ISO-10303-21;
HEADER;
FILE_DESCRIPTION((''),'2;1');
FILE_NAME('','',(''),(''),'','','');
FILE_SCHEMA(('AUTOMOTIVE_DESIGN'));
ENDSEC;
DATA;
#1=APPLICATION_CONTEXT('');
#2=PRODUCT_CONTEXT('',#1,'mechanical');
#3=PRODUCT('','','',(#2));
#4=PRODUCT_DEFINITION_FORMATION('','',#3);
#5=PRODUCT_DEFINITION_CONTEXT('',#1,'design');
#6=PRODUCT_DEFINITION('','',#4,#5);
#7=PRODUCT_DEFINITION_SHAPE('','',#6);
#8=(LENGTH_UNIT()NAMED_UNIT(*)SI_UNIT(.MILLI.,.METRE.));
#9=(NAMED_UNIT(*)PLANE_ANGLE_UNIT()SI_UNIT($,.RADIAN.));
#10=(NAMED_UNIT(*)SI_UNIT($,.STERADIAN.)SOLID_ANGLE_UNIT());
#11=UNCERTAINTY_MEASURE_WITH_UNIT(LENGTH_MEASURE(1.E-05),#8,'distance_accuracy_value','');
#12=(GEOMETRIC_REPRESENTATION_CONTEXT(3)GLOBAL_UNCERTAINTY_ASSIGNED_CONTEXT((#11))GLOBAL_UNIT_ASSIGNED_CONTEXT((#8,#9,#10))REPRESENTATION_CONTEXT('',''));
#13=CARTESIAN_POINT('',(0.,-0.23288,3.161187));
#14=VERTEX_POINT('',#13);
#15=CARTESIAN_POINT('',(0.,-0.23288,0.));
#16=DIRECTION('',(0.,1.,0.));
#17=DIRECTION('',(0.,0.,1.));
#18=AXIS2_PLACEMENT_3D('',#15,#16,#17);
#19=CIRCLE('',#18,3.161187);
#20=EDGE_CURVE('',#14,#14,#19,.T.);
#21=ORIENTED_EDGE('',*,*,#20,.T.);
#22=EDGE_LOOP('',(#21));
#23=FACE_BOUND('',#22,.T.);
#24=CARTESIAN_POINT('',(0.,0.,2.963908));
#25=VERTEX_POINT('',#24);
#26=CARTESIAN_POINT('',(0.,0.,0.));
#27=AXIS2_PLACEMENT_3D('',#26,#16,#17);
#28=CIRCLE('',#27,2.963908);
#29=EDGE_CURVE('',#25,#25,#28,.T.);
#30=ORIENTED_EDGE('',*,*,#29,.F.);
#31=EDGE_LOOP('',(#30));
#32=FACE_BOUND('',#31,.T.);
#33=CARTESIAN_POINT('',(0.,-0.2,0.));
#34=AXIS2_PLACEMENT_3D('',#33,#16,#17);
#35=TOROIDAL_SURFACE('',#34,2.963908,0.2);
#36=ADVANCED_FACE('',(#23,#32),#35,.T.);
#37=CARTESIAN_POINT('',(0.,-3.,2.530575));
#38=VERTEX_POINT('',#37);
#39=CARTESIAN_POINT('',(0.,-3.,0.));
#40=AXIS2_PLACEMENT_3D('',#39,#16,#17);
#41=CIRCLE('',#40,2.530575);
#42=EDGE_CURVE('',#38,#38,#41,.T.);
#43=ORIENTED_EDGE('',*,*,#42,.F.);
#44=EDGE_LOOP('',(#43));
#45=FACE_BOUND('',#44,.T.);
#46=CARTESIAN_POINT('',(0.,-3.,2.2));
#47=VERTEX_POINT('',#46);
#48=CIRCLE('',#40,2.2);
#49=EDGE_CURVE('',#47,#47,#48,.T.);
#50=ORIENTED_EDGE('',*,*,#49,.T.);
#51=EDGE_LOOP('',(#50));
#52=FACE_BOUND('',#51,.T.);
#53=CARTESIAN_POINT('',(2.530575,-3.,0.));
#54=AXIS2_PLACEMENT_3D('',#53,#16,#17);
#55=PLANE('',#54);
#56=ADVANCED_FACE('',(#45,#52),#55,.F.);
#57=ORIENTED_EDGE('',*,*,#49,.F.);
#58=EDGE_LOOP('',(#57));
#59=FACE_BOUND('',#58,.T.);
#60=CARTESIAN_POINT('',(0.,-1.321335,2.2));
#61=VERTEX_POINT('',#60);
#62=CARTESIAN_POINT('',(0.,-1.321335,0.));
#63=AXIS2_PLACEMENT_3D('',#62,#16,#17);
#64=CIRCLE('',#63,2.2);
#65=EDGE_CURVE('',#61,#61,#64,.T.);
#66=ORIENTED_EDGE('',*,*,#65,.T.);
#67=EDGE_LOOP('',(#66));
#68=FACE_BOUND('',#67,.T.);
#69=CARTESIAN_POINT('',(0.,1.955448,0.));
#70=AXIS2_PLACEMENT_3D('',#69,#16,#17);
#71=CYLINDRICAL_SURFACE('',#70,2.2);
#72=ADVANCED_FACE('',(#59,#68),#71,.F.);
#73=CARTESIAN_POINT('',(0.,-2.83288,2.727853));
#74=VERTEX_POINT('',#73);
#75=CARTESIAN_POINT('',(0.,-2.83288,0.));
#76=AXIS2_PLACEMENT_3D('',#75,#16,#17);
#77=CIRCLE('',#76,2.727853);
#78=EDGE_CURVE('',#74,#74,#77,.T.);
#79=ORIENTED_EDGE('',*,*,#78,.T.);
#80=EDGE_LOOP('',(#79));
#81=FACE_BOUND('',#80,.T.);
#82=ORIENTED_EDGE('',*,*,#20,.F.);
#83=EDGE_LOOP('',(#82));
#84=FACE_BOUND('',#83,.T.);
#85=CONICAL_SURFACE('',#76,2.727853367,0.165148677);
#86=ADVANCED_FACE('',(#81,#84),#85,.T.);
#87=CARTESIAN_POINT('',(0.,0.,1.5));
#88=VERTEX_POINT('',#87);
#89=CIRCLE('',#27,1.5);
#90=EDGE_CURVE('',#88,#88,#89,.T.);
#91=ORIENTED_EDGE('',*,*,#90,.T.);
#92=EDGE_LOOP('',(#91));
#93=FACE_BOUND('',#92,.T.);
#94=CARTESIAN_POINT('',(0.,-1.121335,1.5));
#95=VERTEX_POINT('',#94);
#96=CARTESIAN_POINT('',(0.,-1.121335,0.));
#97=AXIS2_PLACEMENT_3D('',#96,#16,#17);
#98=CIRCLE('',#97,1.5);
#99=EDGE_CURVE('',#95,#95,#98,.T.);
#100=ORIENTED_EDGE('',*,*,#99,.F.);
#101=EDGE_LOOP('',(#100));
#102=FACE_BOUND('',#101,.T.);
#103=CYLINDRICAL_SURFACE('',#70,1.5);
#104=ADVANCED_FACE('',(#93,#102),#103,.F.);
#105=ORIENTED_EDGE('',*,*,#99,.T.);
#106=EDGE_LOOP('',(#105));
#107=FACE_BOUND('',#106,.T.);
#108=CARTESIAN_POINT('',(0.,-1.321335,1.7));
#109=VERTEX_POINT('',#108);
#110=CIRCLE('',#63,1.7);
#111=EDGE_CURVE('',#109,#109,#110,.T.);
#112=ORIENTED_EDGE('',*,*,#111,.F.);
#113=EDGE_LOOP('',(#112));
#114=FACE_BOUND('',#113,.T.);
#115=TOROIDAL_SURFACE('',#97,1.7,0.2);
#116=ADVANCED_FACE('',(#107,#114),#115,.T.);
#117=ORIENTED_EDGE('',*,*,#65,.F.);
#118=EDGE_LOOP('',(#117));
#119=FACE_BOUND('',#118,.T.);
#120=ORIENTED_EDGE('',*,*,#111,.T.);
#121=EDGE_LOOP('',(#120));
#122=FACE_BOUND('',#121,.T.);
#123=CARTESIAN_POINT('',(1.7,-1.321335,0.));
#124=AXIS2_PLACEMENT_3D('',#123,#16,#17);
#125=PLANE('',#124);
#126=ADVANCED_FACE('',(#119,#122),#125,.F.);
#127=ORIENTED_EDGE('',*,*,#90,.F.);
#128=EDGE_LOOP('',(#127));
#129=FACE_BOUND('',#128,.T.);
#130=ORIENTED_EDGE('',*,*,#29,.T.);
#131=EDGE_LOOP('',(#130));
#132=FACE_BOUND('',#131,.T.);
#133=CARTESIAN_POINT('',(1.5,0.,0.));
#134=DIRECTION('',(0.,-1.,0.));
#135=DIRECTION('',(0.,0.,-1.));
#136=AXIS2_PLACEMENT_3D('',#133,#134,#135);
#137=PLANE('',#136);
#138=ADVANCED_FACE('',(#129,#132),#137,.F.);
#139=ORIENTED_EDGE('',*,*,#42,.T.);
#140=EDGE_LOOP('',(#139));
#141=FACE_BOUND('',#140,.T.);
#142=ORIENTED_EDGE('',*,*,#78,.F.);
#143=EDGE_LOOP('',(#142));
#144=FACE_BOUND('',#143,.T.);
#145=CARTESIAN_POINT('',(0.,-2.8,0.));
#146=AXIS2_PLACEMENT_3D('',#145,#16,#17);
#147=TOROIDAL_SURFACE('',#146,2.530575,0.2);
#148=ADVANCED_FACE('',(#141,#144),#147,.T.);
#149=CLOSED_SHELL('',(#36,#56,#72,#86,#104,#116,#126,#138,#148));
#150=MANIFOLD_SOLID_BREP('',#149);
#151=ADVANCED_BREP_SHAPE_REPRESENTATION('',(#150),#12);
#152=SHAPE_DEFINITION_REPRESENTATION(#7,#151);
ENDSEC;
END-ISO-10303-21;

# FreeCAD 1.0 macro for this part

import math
import FreeCAD as App
import Part
import Sketcher
from FreeCAD import Vector
Q = App.Units.Quantity

doc = App.newDocument("Part")
params = doc.addObject("Spreadsheet::Sheet", "Params")
for row, (alias, value) in enumerate([
    ("sketch1_radius", "0.2 mm"),
    ("sketch1_width", "0.5 mm"),
    ("revolution_angle", "360 deg"),
], start=1):
    params.set(f"A{row}", alias)
    params.set(f"B{row}", "=" + value)
    params.setAlias(f"B{row}", alias)

body = doc.addObject("PartDesign::Body", "Body")

sketch1 = body.newObject("Sketcher::SketchObject", "Sketch")
sketch1.AttachmentSupport = (doc.getObject("XY_Plane"), [""])
sketch1.MapMode = "FlatFace"
sketch1.addGeometry([
    Part.LineSegment(Vector(2.96, 0, 0), Vector(1.5, 0, 0)),
    Part.LineSegment(Vector(1.5, 0, 0), Vector(1.5, -1.12, 0)),
    Part.ArcOfCircle(Part.Circle(Vector(1.7, -1.12, 0), Vector(0, 0, 1), 0.2), math.radians(-180), math.radians(-90)),
    Part.LineSegment(Vector(1.7, -1.32, 0), Vector(2.2, -1.32, 0)),
    Part.LineSegment(Vector(2.2, -1.32, 0), Vector(2.2, -3, 0)),
    Part.LineSegment(Vector(2.2, -3, 0), Vector(2.53, -3, 0)),
    Part.ArcOfCircle(Part.Circle(Vector(2.53, -2.8, 0), Vector(0, 0, 1), 0.2), math.radians(-90), math.radians(-9)),
    Part.LineSegment(Vector(2.73, -2.83, 0), Vector(3.16, -0.23, 0)),
    Part.ArcOfCircle(Part.Circle(Vector(2.96, -0.2, 0), Vector(0, 0, 1), 0.2), math.radians(-9), math.radians(90)),
], False)
sketch1.addConstraint([
    Sketcher.Constraint("Coincident", 0, 2, 1, 1),
    Sketcher.Constraint("Tangent", 1, 2, 2, 1),
    Sketcher.Constraint("Tangent", 2, 2, 3, 1),
    Sketcher.Constraint("Coincident", 3, 2, 4, 1),
    Sketcher.Constraint("Coincident", 4, 2, 5, 1),
    Sketcher.Constraint("Tangent", 5, 2, 6, 1),
    Sketcher.Constraint("Tangent", 6, 2, 7, 1),
    Sketcher.Constraint("Tangent", 7, 2, 8, 1),
    Sketcher.Constraint("Tangent", 8, 2, 0, 1),
    Sketcher.Constraint("Horizontal", 0),
    Sketcher.Constraint("Vertical", 1),
    Sketcher.Constraint("Horizontal", 3),
    Sketcher.Constraint("Vertical", 4),
    Sketcher.Constraint("Horizontal", 5),
    Sketcher.Constraint("Equal", 2, 6),
    Sketcher.Constraint("Equal", 6, 8),
    Sketcher.Constraint("PointOnObject", 0, 2, -1),
    Sketcher.Constraint("Radius", 2, Q("0.2 mm")),
    Sketcher.Constraint("DistanceX", 3, 1, 3, 2, Q("0.5 mm")),
    Sketcher.Constraint("DistanceY", 4, 2, -1, 1, Q("3 mm")),
    Sketcher.Constraint("DistanceX", -1, 1, 2, 3, Q("1.7 mm")),
    Sketcher.Constraint("DistanceX", 0, 2, 0, 1, Q("1.463908 mm")),
    Sketcher.Constraint("DistanceX", 5, 1, 5, 2, Q("0.330575 mm")),
    Sketcher.Constraint("DistanceY", 1, 2, 1, 1, Q("1.121335 mm")),
])
sketch1.setExpression("Constraints[17]", "Params.sketch1_radius")
sketch1.setExpression("Constraints[18]", "Params.sketch1_width")
revolution = body.newObject("PartDesign::Revolution", "Revolution")
revolution.Profile = sketch1
revolution.ReferenceAxis = (sketch1, ["V_Axis"])
revolution.setExpression("Angle", "Params.revolution_angle")

doc.recompute()
